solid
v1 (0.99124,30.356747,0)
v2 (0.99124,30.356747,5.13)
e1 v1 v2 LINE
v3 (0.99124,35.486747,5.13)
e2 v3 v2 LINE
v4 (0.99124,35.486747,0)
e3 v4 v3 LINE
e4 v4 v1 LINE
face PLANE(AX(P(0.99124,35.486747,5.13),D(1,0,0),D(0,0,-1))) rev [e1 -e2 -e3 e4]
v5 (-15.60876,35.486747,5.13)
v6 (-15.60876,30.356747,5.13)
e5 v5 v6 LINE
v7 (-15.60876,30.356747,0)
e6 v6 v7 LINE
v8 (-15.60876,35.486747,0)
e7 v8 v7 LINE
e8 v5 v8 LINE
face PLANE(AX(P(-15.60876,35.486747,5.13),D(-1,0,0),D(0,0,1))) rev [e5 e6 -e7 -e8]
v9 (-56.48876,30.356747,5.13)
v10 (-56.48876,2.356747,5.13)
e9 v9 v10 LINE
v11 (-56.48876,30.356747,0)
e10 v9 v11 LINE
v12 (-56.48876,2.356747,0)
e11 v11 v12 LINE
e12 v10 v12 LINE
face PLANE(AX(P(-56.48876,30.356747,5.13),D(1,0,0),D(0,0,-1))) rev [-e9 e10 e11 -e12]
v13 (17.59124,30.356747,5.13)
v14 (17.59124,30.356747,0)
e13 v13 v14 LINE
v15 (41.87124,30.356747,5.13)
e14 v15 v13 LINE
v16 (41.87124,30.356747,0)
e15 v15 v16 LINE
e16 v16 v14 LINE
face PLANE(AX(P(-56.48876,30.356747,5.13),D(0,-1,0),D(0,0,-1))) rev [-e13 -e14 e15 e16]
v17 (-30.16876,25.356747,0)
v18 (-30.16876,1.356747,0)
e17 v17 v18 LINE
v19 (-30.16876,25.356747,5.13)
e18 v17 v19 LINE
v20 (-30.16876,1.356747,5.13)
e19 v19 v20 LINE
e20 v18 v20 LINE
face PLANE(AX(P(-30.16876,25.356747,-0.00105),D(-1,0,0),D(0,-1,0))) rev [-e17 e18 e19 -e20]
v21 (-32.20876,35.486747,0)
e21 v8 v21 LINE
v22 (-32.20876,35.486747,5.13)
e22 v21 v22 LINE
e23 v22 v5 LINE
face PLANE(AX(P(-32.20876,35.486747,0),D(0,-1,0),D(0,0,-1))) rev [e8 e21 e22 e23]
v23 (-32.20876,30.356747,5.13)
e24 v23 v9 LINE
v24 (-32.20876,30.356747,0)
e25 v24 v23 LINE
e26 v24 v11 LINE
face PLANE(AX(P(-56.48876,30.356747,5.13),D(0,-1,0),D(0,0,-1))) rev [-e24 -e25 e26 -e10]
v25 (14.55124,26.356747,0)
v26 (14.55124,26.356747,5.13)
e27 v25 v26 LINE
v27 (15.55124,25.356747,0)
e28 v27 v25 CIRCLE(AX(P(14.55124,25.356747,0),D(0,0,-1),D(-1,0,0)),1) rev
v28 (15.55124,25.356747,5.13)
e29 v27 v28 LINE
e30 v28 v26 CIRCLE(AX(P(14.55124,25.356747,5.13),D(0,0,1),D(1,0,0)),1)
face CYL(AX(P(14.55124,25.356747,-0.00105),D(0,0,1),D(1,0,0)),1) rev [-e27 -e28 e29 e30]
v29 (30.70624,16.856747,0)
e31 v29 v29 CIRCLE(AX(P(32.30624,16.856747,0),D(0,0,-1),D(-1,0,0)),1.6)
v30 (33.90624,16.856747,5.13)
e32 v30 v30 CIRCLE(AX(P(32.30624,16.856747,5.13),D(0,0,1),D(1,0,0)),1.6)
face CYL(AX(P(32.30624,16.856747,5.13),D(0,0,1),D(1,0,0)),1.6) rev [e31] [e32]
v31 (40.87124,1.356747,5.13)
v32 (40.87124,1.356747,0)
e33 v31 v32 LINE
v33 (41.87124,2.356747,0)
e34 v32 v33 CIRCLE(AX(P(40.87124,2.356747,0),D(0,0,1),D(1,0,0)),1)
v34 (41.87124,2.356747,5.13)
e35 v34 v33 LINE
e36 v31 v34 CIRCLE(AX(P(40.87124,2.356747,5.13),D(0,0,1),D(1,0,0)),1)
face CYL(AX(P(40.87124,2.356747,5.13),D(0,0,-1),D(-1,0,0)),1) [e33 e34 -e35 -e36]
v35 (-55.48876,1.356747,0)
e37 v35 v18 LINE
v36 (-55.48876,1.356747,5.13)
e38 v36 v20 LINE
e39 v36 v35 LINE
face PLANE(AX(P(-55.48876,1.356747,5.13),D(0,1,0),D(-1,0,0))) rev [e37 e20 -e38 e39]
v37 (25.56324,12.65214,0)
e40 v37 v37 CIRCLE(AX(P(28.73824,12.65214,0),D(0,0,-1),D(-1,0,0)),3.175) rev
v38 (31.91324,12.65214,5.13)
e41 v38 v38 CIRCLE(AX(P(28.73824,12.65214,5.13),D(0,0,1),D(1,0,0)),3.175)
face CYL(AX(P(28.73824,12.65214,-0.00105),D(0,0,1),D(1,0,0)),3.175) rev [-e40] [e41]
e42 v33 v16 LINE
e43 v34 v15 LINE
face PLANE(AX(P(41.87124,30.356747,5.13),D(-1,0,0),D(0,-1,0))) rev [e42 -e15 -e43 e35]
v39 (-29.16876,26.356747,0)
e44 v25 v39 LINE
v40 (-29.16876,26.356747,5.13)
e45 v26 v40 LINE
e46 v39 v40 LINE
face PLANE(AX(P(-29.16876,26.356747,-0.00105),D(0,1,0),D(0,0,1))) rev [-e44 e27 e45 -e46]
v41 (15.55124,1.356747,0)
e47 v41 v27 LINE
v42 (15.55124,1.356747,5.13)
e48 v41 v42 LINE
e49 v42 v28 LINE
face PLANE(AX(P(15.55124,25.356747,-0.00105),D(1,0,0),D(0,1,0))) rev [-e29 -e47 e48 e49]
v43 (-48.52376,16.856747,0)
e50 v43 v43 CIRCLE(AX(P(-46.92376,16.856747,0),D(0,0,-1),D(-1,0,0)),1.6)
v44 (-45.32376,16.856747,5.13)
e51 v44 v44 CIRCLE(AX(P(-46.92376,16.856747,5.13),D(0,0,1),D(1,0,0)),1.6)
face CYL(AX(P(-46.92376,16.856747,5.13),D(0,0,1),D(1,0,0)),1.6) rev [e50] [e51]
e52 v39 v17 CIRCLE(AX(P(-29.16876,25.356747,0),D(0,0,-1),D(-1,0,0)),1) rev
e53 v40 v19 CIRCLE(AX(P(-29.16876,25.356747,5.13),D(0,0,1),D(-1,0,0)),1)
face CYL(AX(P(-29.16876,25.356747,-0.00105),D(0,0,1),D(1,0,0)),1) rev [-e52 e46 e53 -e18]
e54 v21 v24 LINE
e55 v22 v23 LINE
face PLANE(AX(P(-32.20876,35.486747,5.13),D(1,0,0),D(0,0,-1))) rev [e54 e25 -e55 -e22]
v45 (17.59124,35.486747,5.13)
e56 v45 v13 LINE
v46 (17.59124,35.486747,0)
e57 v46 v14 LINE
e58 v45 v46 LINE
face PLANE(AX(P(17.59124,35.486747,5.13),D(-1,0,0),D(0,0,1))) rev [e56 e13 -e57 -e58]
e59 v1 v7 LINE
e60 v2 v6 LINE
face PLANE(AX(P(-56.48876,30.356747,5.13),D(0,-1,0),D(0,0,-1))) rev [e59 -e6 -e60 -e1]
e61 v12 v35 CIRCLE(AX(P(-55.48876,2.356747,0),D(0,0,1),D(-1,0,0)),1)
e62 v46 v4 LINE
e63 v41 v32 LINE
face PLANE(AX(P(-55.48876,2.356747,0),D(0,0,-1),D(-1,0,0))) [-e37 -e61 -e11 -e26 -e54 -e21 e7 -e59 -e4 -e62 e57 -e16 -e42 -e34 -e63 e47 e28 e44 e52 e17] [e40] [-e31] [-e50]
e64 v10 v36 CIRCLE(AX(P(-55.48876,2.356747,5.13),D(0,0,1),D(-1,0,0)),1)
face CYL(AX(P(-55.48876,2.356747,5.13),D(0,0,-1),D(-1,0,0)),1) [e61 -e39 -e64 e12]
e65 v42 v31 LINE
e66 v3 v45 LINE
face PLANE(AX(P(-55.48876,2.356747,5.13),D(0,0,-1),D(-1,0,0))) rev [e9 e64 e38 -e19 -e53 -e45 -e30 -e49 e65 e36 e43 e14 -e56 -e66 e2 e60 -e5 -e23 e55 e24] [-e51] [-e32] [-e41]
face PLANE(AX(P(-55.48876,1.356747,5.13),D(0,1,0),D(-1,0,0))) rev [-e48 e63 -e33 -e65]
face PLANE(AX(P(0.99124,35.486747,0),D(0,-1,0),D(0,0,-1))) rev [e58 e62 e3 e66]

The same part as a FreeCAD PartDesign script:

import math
import FreeCAD as App
import Part
import Sketcher

V = App.Vector

doc = App.newDocument("Part")
body = doc.addObject("PartDesign::Body", "Body")

sketch1 = body.newObject("Sketcher::SketchObject", "Sketch")
sketch1.AttachmentSupport = (doc.getObject("XY_Plane"), [""])
sketch1.MapMode = "FlatFace"
sketch1.addGeometry(Part.LineSegment(V(41.9, 30.4, 0), V(-56.5, 30.4, 0)), False)
sketch1.addGeometry(Part.LineSegment(V(-56.5, 30.4, 0), V(-56.5, 2.4, 0)), False)
sketch1.addGeometry(Part.ArcOfCircle(Part.Circle(V(-55.5, 2.4, 0), V(0, 0, 1), 1), math.radians(-180), math.radians(-90)), False)
sketch1.addGeometry(Part.LineSegment(V(-55.5, 1.4, 0), V(40.9, 1.4, 0)), False)
sketch1.addGeometry(Part.ArcOfCircle(Part.Circle(V(40.9, 2.4, 0), V(0, 0, 1), 1), math.radians(-90), math.radians(0)), False)
sketch1.addGeometry(Part.LineSegment(V(41.9, 2.4, 0), V(41.9, 30.4, 0)), False)
sketch1.addConstraint(Sketcher.Constraint("Coincident", 0, 2, 1, 1))
sketch1.addConstraint(Sketcher.Constraint("Tangent", 1, 2, 2, 1))
sketch1.addConstraint(Sketcher.Constraint("Tangent", 2, 2, 3, 1))
sketch1.addConstraint(Sketcher.Constraint("Tangent", 3, 2, 4, 1))
sketch1.addConstraint(Sketcher.Constraint("Tangent", 4, 2, 5, 1))
sketch1.addConstraint(Sketcher.Constraint("Coincident", 5, 2, 0, 1))
sketch1.addConstraint(Sketcher.Constraint("Horizontal", 0))
sketch1.addConstraint(Sketcher.Constraint("Vertical", 1))
sketch1.addConstraint(Sketcher.Constraint("Horizontal", 3))
sketch1.addConstraint(Sketcher.Constraint("Vertical", 5))
sketch1.addConstraint(Sketcher.Constraint("Equal", 2, 4))
sketch1.addConstraint(Sketcher.Constraint("Radius", 2, 1.0))
sketch1.addConstraint(Sketcher.Constraint("DistanceY", 1, 2, 1, 1, 28.0))
sketch1.addConstraint(Sketcher.Constraint("DistanceX", 0, 2, 0, 1, 98.36))
sketch1.addConstraint(Sketcher.Constraint("DistanceX", 2, 3, -1, 1, 55.48876))
sketch1.addConstraint(Sketcher.Constraint("DistanceY", -1, 1, 2, 3, 2.356747))
pad1 = body.newObject("PartDesign::Pad", "Pad")
pad1.Profile = sketch1
pad1.Length = 5.13

sketch2 = body.newObject("Sketcher::SketchObject", "Sketch001")
sketch2.AttachmentSupport = (doc.getObject("XZ_Plane"), [""])
sketch2.MapMode = "FlatFace"
sketch2.AttachmentOffset = App.Placement(V(0, 0, -30.356747), App.Rotation())
sketch2.addGeometry(Part.LineSegment(V(1, 0, 0), V(1, 5, 0)), False)
sketch2.addGeometry(Part.LineSegment(V(1, 5, 0), V(18, 5, 0)), False)
sketch2.addGeometry(Part.LineSegment(V(18, 5, 0), V(18, 0, 0)), False)
sketch2.addGeometry(Part.LineSegment(V(18, 0, 0), V(1, 0, 0)), False)
sketch2.addGeometry(Part.LineSegment(V(-32, 0, 0), V(-32, 5, 0)), False)
sketch2.addGeometry(Part.LineSegment(V(-32, 5, 0), V(-16, 5, 0)), False)
sketch2.addGeometry(Part.LineSegment(V(-16, 5, 0), V(-16, 0, 0)), False)
sketch2.addGeometry(Part.LineSegment(V(-16, 0, 0), V(-32, 0, 0)), False)
sketch2.addConstraint(Sketcher.Constraint("Coincident", 0, 2, 1, 1))
sketch2.addConstraint(Sketcher.Constraint("Coincident", 1, 2, 2, 1))
sketch2.addConstraint(Sketcher.Constraint("Coincident", 2, 2, 3, 1))
sketch2.addConstraint(Sketcher.Constraint("Coincident", 3, 2, 0, 1))
sketch2.addConstraint(Sketcher.Constraint("Coincident", 4, 2, 5, 1))
sketch2.addConstraint(Sketcher.Constraint("Coincident", 5, 2, 6, 1))
sketch2.addConstraint(Sketcher.Constraint("Coincident", 6, 2, 7, 1))
sketch2.addConstraint(Sketcher.Constraint("Coincident", 7, 2, 4, 1))
sketch2.addConstraint(Sketcher.Constraint("Vertical", 0))
sketch2.addConstraint(Sketcher.Constraint("Horizontal", 1))
sketch2.addConstraint(Sketcher.Constraint("Vertical", 2))
sketch2.addConstraint(Sketcher.Constraint("Horizontal", 3))
sketch2.addConstraint(Sketcher.Constraint("Vertical", 4))
sketch2.addConstraint(Sketcher.Constraint("Horizontal", 5))
sketch2.addConstraint(Sketcher.Constraint("Vertical", 6))
sketch2.addConstraint(Sketcher.Constraint("Horizontal", 7))
sketch2.addConstraint(Sketcher.Constraint("PointOnObject", 2, 2, -1))
sketch2.addConstraint(Sketcher.Constraint("PointOnObject", 6, 2, -1))
sketch2.addConstraint(Sketcher.Constraint("Horizontal", 1, 2, 4, 2))
sketch2.addConstraint(Sketcher.Constraint("Equal", 3, 5))
sketch2.addConstraint(Sketcher.Constraint("DistanceX", 1, 1, 1, 2, 16.6))
sketch2.addConstraint(Sketcher.Constraint("DistanceY", 0, 1, 0, 2, 5.13))
sketch2.addConstraint(Sketcher.Constraint("DistanceX", 4, 2, 0, 2, 33.2))
sketch2.addConstraint(Sketcher.Constraint("DistanceX", -1, 1, 0, 2, 0.99124))
pad2 = body.newObject("PartDesign::Pad", "Pad001")
pad2.Profile = sketch2
pad2.Length = 5.13
pad2.Reversed = True

sketch3 = body.newObject("Sketcher::SketchObject", "Sketch002")
sketch3.AttachmentSupport = (doc.getObject("XY_Plane"), [""])
sketch3.MapMode = "FlatFace"
sketch3.AttachmentOffset = App.Placement(V(0, 0, 5.13), App.Rotation())
sketch3.addGeometry(Part.Circle(V(-46.9, 16.9, 0), V(0, 0, 1), 1.6), False)
sketch3.addGeometry(Part.Circle(V(32.3, 16.9, 0), V(0, 0, 1), 1.6), False)
sketch3.addConstraint(Sketcher.Constraint("Equal", 0, 1))
sketch3.addConstraint(Sketcher.Constraint("Horizontal", 0, 3, 1, 3))
sketch3.addConstraint(Sketcher.Constraint("Diameter", 0, 3.2))
sketch3.addConstraint(Sketcher.Constraint("DistanceX", 0, 3, 1, 3, 79.23))
sketch3.addConstraint(Sketcher.Constraint("DistanceX", 0, 3, -1, 1, 46.92376))
sketch3.addConstraint(Sketcher.Constraint("DistanceY", -1, 1, 0, 3, 16.856747))
doc.recompute()
hole = body.newObject("PartDesign::Hole", "Hole")
hole.Profile = sketch3
hole.ThreadType = "None"
hole.Diameter = 3.2
hole.DepthType = "Dimension"
hole.Depth = 5.13
hole.DrillPoint = "Flat"

sketch4 = body.newObject("Sketcher::SketchObject", "Sketch003")
sketch4.AttachmentSupport = (doc.getObject("XY_Plane"), [""])
sketch4.MapMode = "FlatFace"
sketch4.AttachmentOffset = App.Placement(V(0, 0, 5.13), App.Rotation())
sketch4.addGeometry(Part.LineSegment(V(14.6, 26.4, 0), V(-29.2, 26.4, 0)), False)
sketch4.addGeometry(Part.ArcOfCircle(Part.Circle(V(-29.2, 25.4, 0), V(0, 0, 1), 1), math.radians(90), math.radians(180)), False)
sketch4.addGeometry(Part.LineSegment(V(-30.2, 25.4, 0), V(-30.2, 1.4, 0)), False)
sketch4.addGeometry(Part.LineSegment(V(-30.2, 1.4, 0), V(15.6, 1.4, 0)), False)
sketch4.addGeometry(Part.LineSegment(V(15.6, 1.4, 0), V(15.6, 25.4, 0)), False)
sketch4.addGeometry(Part.ArcOfCircle(Part.Circle(V(14.6, 25.4, 0), V(0, 0, 1), 1), math.radians(0), math.radians(90)), False)
sketch4.addConstraint(Sketcher.Constraint("Tangent", 0, 2, 1, 1))
sketch4.addConstraint(Sketcher.Constraint("Tangent", 1, 2, 2, 1))
sketch4.addConstraint(Sketcher.Constraint("Coincident", 2, 2, 3, 1))
sketch4.addConstraint(Sketcher.Constraint("Coincident", 3, 2, 4, 1))
sketch4.addConstraint(Sketcher.Constraint("Tangent", 4, 2, 5, 1))
sketch4.addConstraint(Sketcher.Constraint("Tangent", 5, 2, 0, 1))
sketch4.addConstraint(Sketcher.Constraint("Horizontal", 0))
sketch4.addConstraint(Sketcher.Constraint("Vertical", 2))
sketch4.addConstraint(Sketcher.Constraint("Horizontal", 3))
sketch4.addConstraint(Sketcher.Constraint("Vertical", 4))
sketch4.addConstraint(Sketcher.Constraint("Equal", 1, 5))
sketch4.addConstraint(Sketcher.Constraint("Radius", 1, 1.0))
sketch4.addConstraint(Sketcher.Constraint("DistanceY", 2, 2, 2, 1, 24.0))
sketch4.addConstraint(Sketcher.Constraint("DistanceX", 0, 2, 0, 1, 43.72))
sketch4.addConstraint(Sketcher.Constraint("DistanceX", 1, 3, -1, 1, 29.16876))
sketch4.addConstraint(Sketcher.Constraint("DistanceY", -1, 1, 1, 3, 25.356747))
pocket1 = body.newObject("PartDesign::Pocket", "Pocket")
pocket1.Profile = sketch4
pocket1.Type = "UpToFirst"

sketch5 = body.newObject("Sketcher::SketchObject", "Sketch004")
sketch5.AttachmentSupport = (doc.getObject("XY_Plane"), [""])
sketch5.MapMode = "FlatFace"
sketch5.AttachmentOffset = App.Placement(V(0, 0, 5.13), App.Rotation())
sketch5.addGeometry(Part.Circle(V(28.7, 12.7, 0), V(0, 0, 1), 3.2), False)
sketch5.addConstraint(Sketcher.Constraint("Diameter", 0, 6.35))
sketch5.addConstraint(Sketcher.Constraint("DistanceX", -1, 1, 0, 3, 28.73824))
sketch5.addConstraint(Sketcher.Constraint("DistanceY", -1, 1, 0, 3, 12.65214))
pocket2 = body.newObject("PartDesign::Pocket", "Pocket001")
pocket2.Profile = sketch5
pocket2.Type = "UpToFirst"

doc.recompute()
